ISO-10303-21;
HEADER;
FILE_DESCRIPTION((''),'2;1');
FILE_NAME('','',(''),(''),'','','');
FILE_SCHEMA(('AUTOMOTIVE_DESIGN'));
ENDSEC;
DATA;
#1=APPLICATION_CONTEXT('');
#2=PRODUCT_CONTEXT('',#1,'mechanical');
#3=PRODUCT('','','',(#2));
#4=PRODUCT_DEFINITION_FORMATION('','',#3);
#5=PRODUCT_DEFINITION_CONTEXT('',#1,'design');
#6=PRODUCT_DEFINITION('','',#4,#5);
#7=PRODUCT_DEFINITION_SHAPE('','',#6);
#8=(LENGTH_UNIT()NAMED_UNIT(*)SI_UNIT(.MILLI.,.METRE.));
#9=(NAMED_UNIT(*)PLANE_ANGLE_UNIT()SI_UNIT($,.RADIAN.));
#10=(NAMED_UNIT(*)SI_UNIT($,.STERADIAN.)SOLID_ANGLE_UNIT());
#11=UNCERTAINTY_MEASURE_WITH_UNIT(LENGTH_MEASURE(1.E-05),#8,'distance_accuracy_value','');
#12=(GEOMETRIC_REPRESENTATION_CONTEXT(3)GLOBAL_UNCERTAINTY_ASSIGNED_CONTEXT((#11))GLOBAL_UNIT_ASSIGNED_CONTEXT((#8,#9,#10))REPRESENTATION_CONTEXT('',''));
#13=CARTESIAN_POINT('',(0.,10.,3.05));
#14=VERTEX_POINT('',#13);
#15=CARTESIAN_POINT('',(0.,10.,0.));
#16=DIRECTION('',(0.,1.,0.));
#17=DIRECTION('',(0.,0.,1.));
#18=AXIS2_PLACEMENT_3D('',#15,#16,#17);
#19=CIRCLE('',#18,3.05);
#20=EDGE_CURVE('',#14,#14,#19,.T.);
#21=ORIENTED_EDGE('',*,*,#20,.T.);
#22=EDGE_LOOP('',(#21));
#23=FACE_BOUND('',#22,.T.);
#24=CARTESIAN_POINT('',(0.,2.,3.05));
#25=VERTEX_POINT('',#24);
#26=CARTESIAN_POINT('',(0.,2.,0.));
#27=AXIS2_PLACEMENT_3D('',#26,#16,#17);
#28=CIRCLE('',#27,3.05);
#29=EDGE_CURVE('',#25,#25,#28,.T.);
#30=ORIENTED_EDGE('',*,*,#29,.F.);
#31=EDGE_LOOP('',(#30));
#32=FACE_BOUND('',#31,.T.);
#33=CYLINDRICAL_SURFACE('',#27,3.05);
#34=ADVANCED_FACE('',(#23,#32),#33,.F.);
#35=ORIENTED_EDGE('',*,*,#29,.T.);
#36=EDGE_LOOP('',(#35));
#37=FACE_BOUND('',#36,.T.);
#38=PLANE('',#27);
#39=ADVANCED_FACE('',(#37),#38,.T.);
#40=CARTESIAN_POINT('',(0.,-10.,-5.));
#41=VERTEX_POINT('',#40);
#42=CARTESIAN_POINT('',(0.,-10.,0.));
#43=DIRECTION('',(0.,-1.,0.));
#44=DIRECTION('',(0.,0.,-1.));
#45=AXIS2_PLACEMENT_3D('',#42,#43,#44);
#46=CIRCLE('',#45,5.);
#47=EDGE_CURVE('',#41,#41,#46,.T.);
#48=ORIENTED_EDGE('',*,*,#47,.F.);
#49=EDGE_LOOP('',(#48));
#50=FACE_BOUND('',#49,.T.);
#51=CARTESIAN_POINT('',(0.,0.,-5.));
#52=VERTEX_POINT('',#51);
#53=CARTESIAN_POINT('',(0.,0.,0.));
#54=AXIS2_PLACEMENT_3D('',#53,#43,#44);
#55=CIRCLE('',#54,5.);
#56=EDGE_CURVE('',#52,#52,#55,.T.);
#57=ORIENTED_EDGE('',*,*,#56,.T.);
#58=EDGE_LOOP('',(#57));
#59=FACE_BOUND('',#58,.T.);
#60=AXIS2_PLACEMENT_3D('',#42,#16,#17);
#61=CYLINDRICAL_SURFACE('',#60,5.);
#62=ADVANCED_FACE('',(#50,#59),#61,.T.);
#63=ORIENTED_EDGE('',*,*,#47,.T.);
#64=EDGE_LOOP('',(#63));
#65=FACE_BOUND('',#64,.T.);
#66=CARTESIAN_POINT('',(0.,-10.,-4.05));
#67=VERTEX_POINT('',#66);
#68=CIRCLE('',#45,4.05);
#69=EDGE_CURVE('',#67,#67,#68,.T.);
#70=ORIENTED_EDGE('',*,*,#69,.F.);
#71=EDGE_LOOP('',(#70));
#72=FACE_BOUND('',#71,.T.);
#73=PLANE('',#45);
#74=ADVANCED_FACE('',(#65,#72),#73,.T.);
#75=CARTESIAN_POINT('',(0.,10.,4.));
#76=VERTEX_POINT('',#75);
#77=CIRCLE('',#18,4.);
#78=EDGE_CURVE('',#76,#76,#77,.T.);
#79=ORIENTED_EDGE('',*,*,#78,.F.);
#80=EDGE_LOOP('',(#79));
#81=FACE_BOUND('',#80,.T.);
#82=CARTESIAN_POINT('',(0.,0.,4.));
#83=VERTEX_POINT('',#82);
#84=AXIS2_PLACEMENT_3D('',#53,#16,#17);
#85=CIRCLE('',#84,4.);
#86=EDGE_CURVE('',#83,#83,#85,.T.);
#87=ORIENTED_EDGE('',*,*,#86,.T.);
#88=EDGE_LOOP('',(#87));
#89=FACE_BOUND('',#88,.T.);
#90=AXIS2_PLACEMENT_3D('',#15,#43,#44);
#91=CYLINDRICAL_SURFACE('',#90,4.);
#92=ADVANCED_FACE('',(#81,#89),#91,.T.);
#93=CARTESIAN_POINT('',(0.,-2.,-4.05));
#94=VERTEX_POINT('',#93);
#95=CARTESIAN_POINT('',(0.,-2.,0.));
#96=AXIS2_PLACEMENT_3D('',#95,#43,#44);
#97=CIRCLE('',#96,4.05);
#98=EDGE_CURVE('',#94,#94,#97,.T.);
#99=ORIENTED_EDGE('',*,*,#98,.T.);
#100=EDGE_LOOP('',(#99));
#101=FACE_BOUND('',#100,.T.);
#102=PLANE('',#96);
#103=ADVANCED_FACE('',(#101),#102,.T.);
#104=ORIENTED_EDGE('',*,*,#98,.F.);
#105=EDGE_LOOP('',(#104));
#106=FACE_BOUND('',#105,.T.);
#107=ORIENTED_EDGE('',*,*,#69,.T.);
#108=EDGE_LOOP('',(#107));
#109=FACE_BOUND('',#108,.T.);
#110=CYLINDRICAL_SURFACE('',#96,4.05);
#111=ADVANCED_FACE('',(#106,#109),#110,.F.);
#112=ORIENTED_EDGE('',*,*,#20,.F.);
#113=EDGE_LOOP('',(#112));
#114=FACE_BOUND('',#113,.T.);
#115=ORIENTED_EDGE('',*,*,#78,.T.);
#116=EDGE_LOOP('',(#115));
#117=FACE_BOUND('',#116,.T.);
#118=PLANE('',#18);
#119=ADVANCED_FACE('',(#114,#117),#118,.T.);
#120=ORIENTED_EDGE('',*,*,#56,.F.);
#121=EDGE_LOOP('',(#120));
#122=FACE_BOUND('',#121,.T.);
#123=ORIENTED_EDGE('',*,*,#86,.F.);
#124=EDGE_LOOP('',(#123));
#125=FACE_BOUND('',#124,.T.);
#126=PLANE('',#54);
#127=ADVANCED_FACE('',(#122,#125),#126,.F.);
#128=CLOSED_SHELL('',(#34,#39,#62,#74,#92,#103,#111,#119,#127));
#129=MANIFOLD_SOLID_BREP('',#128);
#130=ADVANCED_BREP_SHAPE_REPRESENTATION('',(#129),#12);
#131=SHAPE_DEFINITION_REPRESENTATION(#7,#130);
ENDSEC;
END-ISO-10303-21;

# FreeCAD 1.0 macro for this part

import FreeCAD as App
import Part
import Sketcher

V = App.Vector

doc = App.newDocument("Part")
body = doc.addObject("PartDesign::Body", "Body")

# Sketch on XZ plane
sketch1 = doc.addObject("Sketcher::SketchObject", "Sketch")
body.addObject(sketch1)
sketch1.AttachmentSupport = (doc.XZ_Plane, [""])
sketch1.MapMode = "FlatFace"
sketch1.addGeometry(Part.Circle(V(0, 0, 0), V(0, 0, 1), 4), False)
sketch1.addConstraint([
    Sketcher.Constraint("Coincident", 0, 3, -1, 1),
    Sketcher.Constraint("Diameter", 0, 8.0),
])
pad1 = doc.addObject("PartDesign::Pad", "Pad")
body.addObject(pad1)
pad1.Profile = sketch1
pad1.Length = 10
pad1.Reversed = True

# Sketch on XZ plane
sketch2 = doc.addObject("Sketcher::SketchObject", "Sketch001")
body.addObject(sketch2)
sketch2.AttachmentSupport = (doc.XZ_Plane, [""])
sketch2.MapMode = "FlatFace"
sketch2.AttachmentOffset = App.Placement(V(0, 0, -10), App.Rotation())
sketch2.addGeometry(Part.Circle(V(0, 0, 0), V(0, 0, 1), 3), False)
sketch2.addConstraint([
    Sketcher.Constraint("Coincident", 0, 3, -1, 1),
    Sketcher.Constraint("Diameter", 0, 6.1),
])
pocket1 = doc.addObject("PartDesign::Pocket", "Pocket")
body.addObject(pocket1)
pocket1.Profile = sketch2
pocket1.Length = 8
pocket1.Reversed = True

# Sketch on XZ plane
sketch3 = doc.addObject("Sketcher::SketchObject", "Sketch002")
body.addObject(sketch3)
sketch3.AttachmentSupport = (doc.XZ_Plane, [""])
sketch3.MapMode = "FlatFace"
sketch3.addGeometry(Part.Circle(V(0, 0, 0), V(0, 0, 1), 5), False)
sketch3.addConstraint([
    Sketcher.Constraint("Coincident", 0, 3, -1, 1),
    Sketcher.Constraint("Diameter", 0, 10.0),
])
pad2 = doc.addObject("PartDesign::Pad", "Pad001")
body.addObject(pad2)
pad2.Profile = sketch3
pad2.Length = 10

# Sketch on XZ plane
sketch4 = doc.addObject("Sketcher::SketchObject", "Sketch003")
body.addObject(sketch4)
sketch4.AttachmentSupport = (doc.XZ_Plane, [""])
sketch4.MapMode = "FlatFace"
sketch4.AttachmentOffset = App.Placement(V(0, 0, 10), App.Rotation())
sketch4.addGeometry(Part.Circle(V(0, 0, 0), V(0, 0, 1), 4), False)
sketch4.addConstraint([
    Sketcher.Constraint("Coincident", 0, 3, -1, 1),
    Sketcher.Constraint("Diameter", 0, 8.1),
])
pocket2 = doc.addObject("PartDesign::Pocket", "Pocket001")
body.addObject(pocket2)
pocket2.Profile = sketch4
pocket2.Length = 8

doc.recompute()
